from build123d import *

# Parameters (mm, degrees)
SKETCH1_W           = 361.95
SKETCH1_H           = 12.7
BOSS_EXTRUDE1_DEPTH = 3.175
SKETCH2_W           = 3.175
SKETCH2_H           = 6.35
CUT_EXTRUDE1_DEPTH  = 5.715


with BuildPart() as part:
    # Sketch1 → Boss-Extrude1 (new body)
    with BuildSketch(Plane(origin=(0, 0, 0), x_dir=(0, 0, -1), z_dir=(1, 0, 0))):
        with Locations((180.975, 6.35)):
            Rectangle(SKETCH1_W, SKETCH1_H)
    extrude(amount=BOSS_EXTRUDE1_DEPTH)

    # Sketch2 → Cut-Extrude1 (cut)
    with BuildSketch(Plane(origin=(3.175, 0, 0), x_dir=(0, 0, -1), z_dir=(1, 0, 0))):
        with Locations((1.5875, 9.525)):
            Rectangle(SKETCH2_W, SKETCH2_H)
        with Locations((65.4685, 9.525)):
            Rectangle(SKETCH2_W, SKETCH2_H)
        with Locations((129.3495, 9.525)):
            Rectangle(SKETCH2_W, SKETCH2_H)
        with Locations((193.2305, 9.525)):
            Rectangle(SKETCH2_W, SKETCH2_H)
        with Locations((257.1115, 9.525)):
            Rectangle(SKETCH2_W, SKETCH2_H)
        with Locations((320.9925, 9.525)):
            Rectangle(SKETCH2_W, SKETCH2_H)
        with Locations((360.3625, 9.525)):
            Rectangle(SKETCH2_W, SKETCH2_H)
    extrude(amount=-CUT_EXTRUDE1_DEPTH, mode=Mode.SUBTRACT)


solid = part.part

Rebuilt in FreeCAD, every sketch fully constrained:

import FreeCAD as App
import Part
import Sketcher

V = App.Vector
Q = App.Units.Quantity

doc = App.newDocument("Part")
body = doc.addObject("PartDesign::Body", "Body")

sketch1 = body.newObject("Sketcher::SketchObject", "Sketch")
sketch1.AttachmentSupport = (doc.getObject("YZ_Plane"), [""])
sketch1.MapMode = "FlatFace"
sketch1.addGeometry([
    Part.LineSegment(V(12.7, 0, 0), V(0, 0, 0)),
    Part.LineSegment(V(0, 0, 0), V(0, -361.95, 0)),
    Part.LineSegment(V(0, -361.95, 0), V(12.7, -361.95, 0)),
    Part.LineSegment(V(12.7, -361.95, 0), V(12.7, 0, 0)),
], False)
sketch1.addConstraint([
    Sketcher.Constraint("Coincident", 0, 2, 1, 1),
    Sketcher.Constraint("Coincident", 1, 2, 2, 1),
    Sketcher.Constraint("Coincident", 2, 2, 3, 1),
    Sketcher.Constraint("Coincident", 3, 2, 0, 1),
    Sketcher.Constraint("Horizontal", 0),
    Sketcher.Constraint("Vertical", 1),
    Sketcher.Constraint("Horizontal", 2),
    Sketcher.Constraint("Vertical", 3),
    Sketcher.Constraint("Coincident", 0, 2, -1, 1),
    Sketcher.Constraint("DistanceX", 0, 2, 0, 1, Q("0.5 in")),
    Sketcher.Constraint("DistanceY", 1, 2, 1, 1, Q("14.25 in")),
])
pad1 = body.newObject("PartDesign::Pad", "Pad")
pad1.Profile = sketch1
pad1.Length = Q("0.125 in")

sketch2 = body.newObject("Sketcher::SketchObject", "Sketch001")
sketch2.AttachmentSupport = (doc.getObject("YZ_Plane"), [""])
sketch2.MapMode = "FlatFace"
sketch2.AttachmentOffset = App.Placement(V(0, 0, 0.125 * 25.4), App.Rotation())
sketch2.addGeometry([
    Part.LineSegment(V(12.7, 0, 0), V(6.35, 0, 0)),
    Part.LineSegment(V(6.35, 0, 0), V(6.35, -3.175, 0)),
    Part.LineSegment(V(6.35, -3.175, 0), V(12.7, -3.175, 0)),
    Part.LineSegment(V(12.7, -3.175, 0), V(12.7, 0, 0)),
    Part.LineSegment(V(12.7, -63.881, 0), V(6.35, -63.881, 0)),
    Part.LineSegment(V(6.35, -63.881, 0), V(6.35, -67.056, 0)),
    Part.LineSegment(V(6.35, -67.056, 0), V(12.7, -67.056, 0)),
    Part.LineSegment(V(12.7, -67.056, 0), V(12.7, -63.881, 0)),
    Part.LineSegment(V(12.7, -127.762, 0), V(6.35, -127.762, 0)),
    Part.LineSegment(V(6.35, -127.762, 0), V(6.35, -130.937, 0)),
    Part.LineSegment(V(6.35, -130.937, 0), V(12.7, -130.937, 0)),
    Part.LineSegment(V(12.7, -130.937, 0), V(12.7, -127.762, 0)),
    Part.LineSegment(V(12.7, -191.643, 0), V(6.35, -191.643, 0)),
    Part.LineSegment(V(6.35, -191.643, 0), V(6.35, -194.818, 0)),
    Part.LineSegment(V(6.35, -194.818, 0), V(12.7, -194.818, 0)),
    Part.LineSegment(V(12.7, -194.818, 0), V(12.7, -191.643, 0)),
    Part.LineSegment(V(12.7, -255.524, 0), V(6.35, -255.524, 0)),
    Part.LineSegment(V(6.35, -255.524, 0), V(6.35, -258.699, 0)),
    Part.LineSegment(V(6.35, -258.699, 0), V(12.7, -258.699, 0)),
    Part.LineSegment(V(12.7, -258.699, 0), V(12.7, -255.524, 0)),
    Part.LineSegment(V(12.7, -319.405, 0), V(6.35, -319.405, 0)),
    Part.LineSegment(V(6.35, -319.405, 0), V(6.35, -322.58, 0)),
    Part.LineSegment(V(6.35, -322.58, 0), V(12.7, -322.58, 0)),
    Part.LineSegment(V(12.7, -322.58, 0), V(12.7, -319.405, 0)),
    Part.LineSegment(V(12.7, -358.775, 0), V(6.35, -358.775, 0)),
    Part.LineSegment(V(6.35, -358.775, 0), V(6.35, -361.95, 0)),
    Part.LineSegment(V(6.35, -361.95, 0), V(12.7, -361.95, 0)),
    Part.LineSegment(V(12.7, -361.95, 0), V(12.7, -358.775, 0)),
], False)
sketch2.addConstraint([
    Sketcher.Constraint("Coincident", 0, 2, 1, 1),
    Sketcher.Constraint("Coincident", 1, 2, 2, 1),
    Sketcher.Constraint("Coincident", 2, 2, 3, 1),
    Sketcher.Constraint("Coincident", 3, 2, 0, 1),
    Sketcher.Constraint("Coincident", 4, 2, 5, 1),
    Sketcher.Constraint("Coincident", 5, 2, 6, 1),
    Sketcher.Constraint("Coincident", 6, 2, 7, 1),
    Sketcher.Constraint("Coincident", 7, 2, 4, 1),
    Sketcher.Constraint("Coincident", 8, 2, 9, 1),
    Sketcher.Constraint("Coincident", 9, 2, 10, 1),
    Sketcher.Constraint("Coincident", 10, 2, 11, 1),
    Sketcher.Constraint("Coincident", 11, 2, 8, 1),
    Sketcher.Constraint("Coincident", 12, 2, 13, 1),
    Sketcher.Constraint("Coincident", 13, 2, 14, 1),
    Sketcher.Constraint("Coincident", 14, 2, 15, 1),
    Sketcher.Constraint("Coincident", 15, 2, 12, 1),
    Sketcher.Constraint("Coincident", 16, 2, 17, 1),
    Sketcher.Constraint("Coincident", 17, 2, 18, 1),
    Sketcher.Constraint("Coincident", 18, 2, 19, 1),
    Sketcher.Constraint("Coincident", 19, 2, 16, 1),
    Sketcher.Constraint("Coincident", 20, 2, 21, 1),
    Sketcher.Constraint("Coincident", 21, 2, 22, 1),
    Sketcher.Constraint("Coincident", 22, 2, 23, 1),
    Sketcher.Constraint("Coincident", 23, 2, 20, 1),
    Sketcher.Constraint("Coincident", 24, 2, 25, 1),
    Sketcher.Constraint("Coincident", 25, 2, 26, 1),
    Sketcher.Constraint("Coincident", 26, 2, 27, 1),
    Sketcher.Constraint("Coincident", 27, 2, 24, 1),
    Sketcher.Constraint("Horizontal", 0),
    Sketcher.Constraint("Vertical", 1),
    Sketcher.Constraint("Horizontal", 2),
    Sketcher.Constraint("Vertical", 3),
    Sketcher.Constraint("Horizontal", 4),
    Sketcher.Constraint("Vertical", 5),
    Sketcher.Constraint("Horizontal", 6),
    Sketcher.Constraint("Vertical", 7),
    Sketcher.Constraint("Horizontal", 8),
    Sketcher.Constraint("Vertical", 9),
    Sketcher.Constraint("Horizontal", 10),
    Sketcher.Constraint("Vertical", 11),
    Sketcher.Constraint("Horizontal", 12),
    Sketcher.Constraint("Vertical", 13),
    Sketcher.Constraint("Horizontal", 14),
    Sketcher.Constraint("Vertical", 15),
    Sketcher.Constraint("Horizontal", 16),
    Sketcher.Constraint("Vertical", 17),
    Sketcher.Constraint("Horizontal", 18),
    Sketcher.Constraint("Vertical", 19),
    Sketcher.Constraint("Horizontal", 20),
    Sketcher.Constraint("Vertical", 21),
    Sketcher.Constraint("Horizontal", 22),
    Sketcher.Constraint("Vertical", 23),
    Sketcher.Constraint("Horizontal", 24),
    Sketcher.Constraint("Vertical", 25),
    Sketcher.Constraint("Horizontal", 26),
    Sketcher.Constraint("Vertical", 27),
    Sketcher.Constraint("PointOnObject", 0, 2, -1),
    Sketcher.Constraint("Vertical", 1, 2, 4, 2),
    Sketcher.Constraint("Vertical", 3, 2, 6, 2),
    Sketcher.Constraint("Vertical", 5, 2, 8, 2),
    Sketcher.Constraint("Vertical", 7, 2, 10, 2),
    Sketcher.Constraint("Vertical", 9, 2, 12, 2),
    Sketcher.Constraint("Vertical", 11, 2, 14, 2),
    Sketcher.Constraint("Vertical", 13, 2, 16, 2),
    Sketcher.Constraint("Vertical", 15, 2, 18, 2),
    Sketcher.Constraint("Vertical", 17, 2, 20, 2),
    Sketcher.Constraint("Vertical", 19, 2, 22, 2),
    Sketcher.Constraint("Vertical", 21, 2, 24, 2),
    Sketcher.Constraint("Vertical", 23, 2, 26, 2),
    Sketcher.Constraint("Equal", 3, 5),
    Sketcher.Constraint("Equal", 7, 9),
    Sketcher.Constraint("Equal", 11, 13),
    Sketcher.Constraint("Equal", 15, 17),
    Sketcher.Constraint("Equal", 19, 21),
    Sketcher.Constraint("Equal", 23, 25),
    Sketcher.Constraint("DistanceX", 0, 2, 0, 1, Q("0.25 in")),
    Sketcher.Constraint("DistanceX", -1, 1, 2, 2, Q("0.5 in")),
    Sketcher.Constraint("DistanceY", 21, 2, -1, 1, Q("12.7 in")),
    Sketcher.Constraint("DistanceY", 1, 2, 1, 1, Q("0.125 in")),
    Sketcher.Constraint("DistanceY", 5, 2, -1, 1, Q("2.64 in")),
    Sketcher.Constraint("DistanceY", 8, 2, -1, 1, Q("5.03 in")),
    Sketcher.Constraint("DistanceY", 13, 2, -1, 1, Q("7.67 in")),
    Sketcher.Constraint("DistanceY", 16, 2, -1, 1, Q("10.06 in")),
    Sketcher.Constraint("DistanceY", 25, 2, -1, 1, Q("14.25 in")),
])
pocket1 = body.newObject("PartDesign::Pocket", "Pocket")
pocket1.Profile = sketch2
pocket1.Length = Q("0.225 in")

doc.recompute()
